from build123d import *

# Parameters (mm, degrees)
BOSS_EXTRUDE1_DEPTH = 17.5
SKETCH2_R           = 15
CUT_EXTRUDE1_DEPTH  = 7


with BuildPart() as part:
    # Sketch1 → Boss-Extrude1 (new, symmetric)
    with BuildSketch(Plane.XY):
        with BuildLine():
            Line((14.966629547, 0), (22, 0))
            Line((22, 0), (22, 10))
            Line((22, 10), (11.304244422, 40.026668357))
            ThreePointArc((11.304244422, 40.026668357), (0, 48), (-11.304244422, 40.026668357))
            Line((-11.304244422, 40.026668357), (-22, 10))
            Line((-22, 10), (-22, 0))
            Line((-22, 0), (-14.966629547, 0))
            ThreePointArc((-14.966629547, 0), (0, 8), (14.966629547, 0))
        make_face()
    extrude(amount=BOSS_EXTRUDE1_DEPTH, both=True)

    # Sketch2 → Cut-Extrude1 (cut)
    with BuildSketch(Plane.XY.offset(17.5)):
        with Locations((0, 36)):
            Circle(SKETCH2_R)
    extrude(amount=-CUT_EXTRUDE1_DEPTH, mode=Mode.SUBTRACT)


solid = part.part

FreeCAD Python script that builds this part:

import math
import FreeCAD as App
import Part
import Sketcher
from FreeCAD import Vector
Q = App.Units.Quantity

doc = App.newDocument("Part")
body = doc.addObject("PartDesign::Body", "Body")

sketch1 = doc.addObject("Sketcher::SketchObject", "Sketch")
body.addObject(sketch1)
sketch1.AttachmentSupport = (doc.XY_Plane, [""])
sketch1.MapMode = "FlatFace"
sketch1.addGeometry(Part.LineSegment(Vector(14.96663, 0, 0), Vector(22, 0, 0)), False)
sketch1.addGeometry(Part.LineSegment(Vector(22, 0, 0), Vector(22, 10, 0)), False)
sketch1.addGeometry(Part.LineSegment(Vector(22, 10, 0), Vector(11.304244, 40.026668, 0)), False)
sketch1.addGeometry(Part.ArcOfCircle(Part.Circle(Vector(0, 36, 0), Vector(0, 0, 1), 12), math.radians(19.606333), math.radians(160.393667)), False)
sketch1.addGeometry(Part.LineSegment(Vector(-11.304244, 40.026668, 0), Vector(-22, 10, 0)), False)
sketch1.addGeometry(Part.LineSegment(Vector(-22, 10, 0), Vector(-22, 0, 0)), False)
sketch1.addGeometry(Part.LineSegment(Vector(-22, 0, 0), Vector(-14.96663, 0, 0)), False)
sketch1.addGeometry(Part.ArcOfCircle(Part.Circle(Vector(0, -10, 0), Vector(0, 0, 1), 18), math.radians(33.748989), math.radians(146.251011)), False)
sketch1.addConstraint(Sketcher.Constraint("Coincident", 0, 2, 1, 1))
sketch1.addConstraint(Sketcher.Constraint("Coincident", 1, 2, 2, 1))
sketch1.addConstraint(Sketcher.Constraint("Tangent", 2, 2, 3, 1))
sketch1.addConstraint(Sketcher.Constraint("Tangent", 3, 2, 4, 1))
sketch1.addConstraint(Sketcher.Constraint("Coincident", 4, 2, 5, 1))
sketch1.addConstraint(Sketcher.Constraint("Coincident", 5, 2, 6, 1))
sketch1.addConstraint(Sketcher.Constraint("Coincident", 6, 2, 7, 2))
sketch1.addConstraint(Sketcher.Constraint("Coincident", 7, 1, 0, 1))
sketch1.addConstraint(Sketcher.Constraint("Horizontal", 0))
sketch1.addConstraint(Sketcher.Constraint("Vertical", 1))
sketch1.addConstraint(Sketcher.Constraint("Vertical", 5))
sketch1.addConstraint(Sketcher.Constraint("Horizontal", 6))
sketch1.addConstraint(Sketcher.Constraint("Symmetric", 0, 2, 5, 2, -1, 1))
sketch1.addConstraint(Sketcher.Constraint("Symmetric", 2, 2, 3, 2, -2))
sketch1.addConstraint(Sketcher.Constraint("Symmetric", 6, 2, 7, 1, -2))
sketch1.addConstraint(Sketcher.Constraint("Radius", 3, Q("12 mm")))
sketch1.addConstraint(Sketcher.Constraint("Radius", 7, Q("18 mm")))
sketch1.addConstraint(Sketcher.Constraint("DistanceY", 1, 1, 1, 2, Q("10 mm")))
sketch1.addConstraint(Sketcher.Constraint("DistanceY", -1, 1, 3, 3, Q("36 mm")))
sketch1.addConstraint(Sketcher.Constraint("DistanceY", 7, 3, -1, 1, Q("10 mm")))
sketch1.addConstraint(Sketcher.Constraint("DistanceX", -1, 1, 0, 2, Q("22 mm")))
pad1 = doc.addObject("PartDesign::Pad", "Pad")
body.addObject(pad1)
pad1.Profile = sketch1
pad1.Length = 35
pad1.Midplane = True

sketch2 = doc.addObject("Sketcher::SketchObject", "Sketch001")
body.addObject(sketch2)
sketch2.AttachmentSupport = (doc.XY_Plane, [""])
sketch2.MapMode = "FlatFace"
sketch2.AttachmentOffset = App.Placement(Vector(0, 0, 17.5), App.Rotation())
sketch2.addGeometry(Part.Circle(Vector(0, 36, 0), Vector(0, 0, 1), 15), False)
sketch2.addConstraint(Sketcher.Constraint("PointOnObject", 0, 3, -2))
sketch2.addConstraint(Sketcher.Constraint("Diameter", 0, Q("30 mm")))
sketch2.addConstraint(Sketcher.Constraint("DistanceY", -1, 1, 0, 3, Q("36 mm")))
pocket1 = doc.addObject("PartDesign::Pocket", "Pocket")
body.addObject(pocket1)
pocket1.Profile = sketch2
pocket1.Length = 7

doc.recompute()
